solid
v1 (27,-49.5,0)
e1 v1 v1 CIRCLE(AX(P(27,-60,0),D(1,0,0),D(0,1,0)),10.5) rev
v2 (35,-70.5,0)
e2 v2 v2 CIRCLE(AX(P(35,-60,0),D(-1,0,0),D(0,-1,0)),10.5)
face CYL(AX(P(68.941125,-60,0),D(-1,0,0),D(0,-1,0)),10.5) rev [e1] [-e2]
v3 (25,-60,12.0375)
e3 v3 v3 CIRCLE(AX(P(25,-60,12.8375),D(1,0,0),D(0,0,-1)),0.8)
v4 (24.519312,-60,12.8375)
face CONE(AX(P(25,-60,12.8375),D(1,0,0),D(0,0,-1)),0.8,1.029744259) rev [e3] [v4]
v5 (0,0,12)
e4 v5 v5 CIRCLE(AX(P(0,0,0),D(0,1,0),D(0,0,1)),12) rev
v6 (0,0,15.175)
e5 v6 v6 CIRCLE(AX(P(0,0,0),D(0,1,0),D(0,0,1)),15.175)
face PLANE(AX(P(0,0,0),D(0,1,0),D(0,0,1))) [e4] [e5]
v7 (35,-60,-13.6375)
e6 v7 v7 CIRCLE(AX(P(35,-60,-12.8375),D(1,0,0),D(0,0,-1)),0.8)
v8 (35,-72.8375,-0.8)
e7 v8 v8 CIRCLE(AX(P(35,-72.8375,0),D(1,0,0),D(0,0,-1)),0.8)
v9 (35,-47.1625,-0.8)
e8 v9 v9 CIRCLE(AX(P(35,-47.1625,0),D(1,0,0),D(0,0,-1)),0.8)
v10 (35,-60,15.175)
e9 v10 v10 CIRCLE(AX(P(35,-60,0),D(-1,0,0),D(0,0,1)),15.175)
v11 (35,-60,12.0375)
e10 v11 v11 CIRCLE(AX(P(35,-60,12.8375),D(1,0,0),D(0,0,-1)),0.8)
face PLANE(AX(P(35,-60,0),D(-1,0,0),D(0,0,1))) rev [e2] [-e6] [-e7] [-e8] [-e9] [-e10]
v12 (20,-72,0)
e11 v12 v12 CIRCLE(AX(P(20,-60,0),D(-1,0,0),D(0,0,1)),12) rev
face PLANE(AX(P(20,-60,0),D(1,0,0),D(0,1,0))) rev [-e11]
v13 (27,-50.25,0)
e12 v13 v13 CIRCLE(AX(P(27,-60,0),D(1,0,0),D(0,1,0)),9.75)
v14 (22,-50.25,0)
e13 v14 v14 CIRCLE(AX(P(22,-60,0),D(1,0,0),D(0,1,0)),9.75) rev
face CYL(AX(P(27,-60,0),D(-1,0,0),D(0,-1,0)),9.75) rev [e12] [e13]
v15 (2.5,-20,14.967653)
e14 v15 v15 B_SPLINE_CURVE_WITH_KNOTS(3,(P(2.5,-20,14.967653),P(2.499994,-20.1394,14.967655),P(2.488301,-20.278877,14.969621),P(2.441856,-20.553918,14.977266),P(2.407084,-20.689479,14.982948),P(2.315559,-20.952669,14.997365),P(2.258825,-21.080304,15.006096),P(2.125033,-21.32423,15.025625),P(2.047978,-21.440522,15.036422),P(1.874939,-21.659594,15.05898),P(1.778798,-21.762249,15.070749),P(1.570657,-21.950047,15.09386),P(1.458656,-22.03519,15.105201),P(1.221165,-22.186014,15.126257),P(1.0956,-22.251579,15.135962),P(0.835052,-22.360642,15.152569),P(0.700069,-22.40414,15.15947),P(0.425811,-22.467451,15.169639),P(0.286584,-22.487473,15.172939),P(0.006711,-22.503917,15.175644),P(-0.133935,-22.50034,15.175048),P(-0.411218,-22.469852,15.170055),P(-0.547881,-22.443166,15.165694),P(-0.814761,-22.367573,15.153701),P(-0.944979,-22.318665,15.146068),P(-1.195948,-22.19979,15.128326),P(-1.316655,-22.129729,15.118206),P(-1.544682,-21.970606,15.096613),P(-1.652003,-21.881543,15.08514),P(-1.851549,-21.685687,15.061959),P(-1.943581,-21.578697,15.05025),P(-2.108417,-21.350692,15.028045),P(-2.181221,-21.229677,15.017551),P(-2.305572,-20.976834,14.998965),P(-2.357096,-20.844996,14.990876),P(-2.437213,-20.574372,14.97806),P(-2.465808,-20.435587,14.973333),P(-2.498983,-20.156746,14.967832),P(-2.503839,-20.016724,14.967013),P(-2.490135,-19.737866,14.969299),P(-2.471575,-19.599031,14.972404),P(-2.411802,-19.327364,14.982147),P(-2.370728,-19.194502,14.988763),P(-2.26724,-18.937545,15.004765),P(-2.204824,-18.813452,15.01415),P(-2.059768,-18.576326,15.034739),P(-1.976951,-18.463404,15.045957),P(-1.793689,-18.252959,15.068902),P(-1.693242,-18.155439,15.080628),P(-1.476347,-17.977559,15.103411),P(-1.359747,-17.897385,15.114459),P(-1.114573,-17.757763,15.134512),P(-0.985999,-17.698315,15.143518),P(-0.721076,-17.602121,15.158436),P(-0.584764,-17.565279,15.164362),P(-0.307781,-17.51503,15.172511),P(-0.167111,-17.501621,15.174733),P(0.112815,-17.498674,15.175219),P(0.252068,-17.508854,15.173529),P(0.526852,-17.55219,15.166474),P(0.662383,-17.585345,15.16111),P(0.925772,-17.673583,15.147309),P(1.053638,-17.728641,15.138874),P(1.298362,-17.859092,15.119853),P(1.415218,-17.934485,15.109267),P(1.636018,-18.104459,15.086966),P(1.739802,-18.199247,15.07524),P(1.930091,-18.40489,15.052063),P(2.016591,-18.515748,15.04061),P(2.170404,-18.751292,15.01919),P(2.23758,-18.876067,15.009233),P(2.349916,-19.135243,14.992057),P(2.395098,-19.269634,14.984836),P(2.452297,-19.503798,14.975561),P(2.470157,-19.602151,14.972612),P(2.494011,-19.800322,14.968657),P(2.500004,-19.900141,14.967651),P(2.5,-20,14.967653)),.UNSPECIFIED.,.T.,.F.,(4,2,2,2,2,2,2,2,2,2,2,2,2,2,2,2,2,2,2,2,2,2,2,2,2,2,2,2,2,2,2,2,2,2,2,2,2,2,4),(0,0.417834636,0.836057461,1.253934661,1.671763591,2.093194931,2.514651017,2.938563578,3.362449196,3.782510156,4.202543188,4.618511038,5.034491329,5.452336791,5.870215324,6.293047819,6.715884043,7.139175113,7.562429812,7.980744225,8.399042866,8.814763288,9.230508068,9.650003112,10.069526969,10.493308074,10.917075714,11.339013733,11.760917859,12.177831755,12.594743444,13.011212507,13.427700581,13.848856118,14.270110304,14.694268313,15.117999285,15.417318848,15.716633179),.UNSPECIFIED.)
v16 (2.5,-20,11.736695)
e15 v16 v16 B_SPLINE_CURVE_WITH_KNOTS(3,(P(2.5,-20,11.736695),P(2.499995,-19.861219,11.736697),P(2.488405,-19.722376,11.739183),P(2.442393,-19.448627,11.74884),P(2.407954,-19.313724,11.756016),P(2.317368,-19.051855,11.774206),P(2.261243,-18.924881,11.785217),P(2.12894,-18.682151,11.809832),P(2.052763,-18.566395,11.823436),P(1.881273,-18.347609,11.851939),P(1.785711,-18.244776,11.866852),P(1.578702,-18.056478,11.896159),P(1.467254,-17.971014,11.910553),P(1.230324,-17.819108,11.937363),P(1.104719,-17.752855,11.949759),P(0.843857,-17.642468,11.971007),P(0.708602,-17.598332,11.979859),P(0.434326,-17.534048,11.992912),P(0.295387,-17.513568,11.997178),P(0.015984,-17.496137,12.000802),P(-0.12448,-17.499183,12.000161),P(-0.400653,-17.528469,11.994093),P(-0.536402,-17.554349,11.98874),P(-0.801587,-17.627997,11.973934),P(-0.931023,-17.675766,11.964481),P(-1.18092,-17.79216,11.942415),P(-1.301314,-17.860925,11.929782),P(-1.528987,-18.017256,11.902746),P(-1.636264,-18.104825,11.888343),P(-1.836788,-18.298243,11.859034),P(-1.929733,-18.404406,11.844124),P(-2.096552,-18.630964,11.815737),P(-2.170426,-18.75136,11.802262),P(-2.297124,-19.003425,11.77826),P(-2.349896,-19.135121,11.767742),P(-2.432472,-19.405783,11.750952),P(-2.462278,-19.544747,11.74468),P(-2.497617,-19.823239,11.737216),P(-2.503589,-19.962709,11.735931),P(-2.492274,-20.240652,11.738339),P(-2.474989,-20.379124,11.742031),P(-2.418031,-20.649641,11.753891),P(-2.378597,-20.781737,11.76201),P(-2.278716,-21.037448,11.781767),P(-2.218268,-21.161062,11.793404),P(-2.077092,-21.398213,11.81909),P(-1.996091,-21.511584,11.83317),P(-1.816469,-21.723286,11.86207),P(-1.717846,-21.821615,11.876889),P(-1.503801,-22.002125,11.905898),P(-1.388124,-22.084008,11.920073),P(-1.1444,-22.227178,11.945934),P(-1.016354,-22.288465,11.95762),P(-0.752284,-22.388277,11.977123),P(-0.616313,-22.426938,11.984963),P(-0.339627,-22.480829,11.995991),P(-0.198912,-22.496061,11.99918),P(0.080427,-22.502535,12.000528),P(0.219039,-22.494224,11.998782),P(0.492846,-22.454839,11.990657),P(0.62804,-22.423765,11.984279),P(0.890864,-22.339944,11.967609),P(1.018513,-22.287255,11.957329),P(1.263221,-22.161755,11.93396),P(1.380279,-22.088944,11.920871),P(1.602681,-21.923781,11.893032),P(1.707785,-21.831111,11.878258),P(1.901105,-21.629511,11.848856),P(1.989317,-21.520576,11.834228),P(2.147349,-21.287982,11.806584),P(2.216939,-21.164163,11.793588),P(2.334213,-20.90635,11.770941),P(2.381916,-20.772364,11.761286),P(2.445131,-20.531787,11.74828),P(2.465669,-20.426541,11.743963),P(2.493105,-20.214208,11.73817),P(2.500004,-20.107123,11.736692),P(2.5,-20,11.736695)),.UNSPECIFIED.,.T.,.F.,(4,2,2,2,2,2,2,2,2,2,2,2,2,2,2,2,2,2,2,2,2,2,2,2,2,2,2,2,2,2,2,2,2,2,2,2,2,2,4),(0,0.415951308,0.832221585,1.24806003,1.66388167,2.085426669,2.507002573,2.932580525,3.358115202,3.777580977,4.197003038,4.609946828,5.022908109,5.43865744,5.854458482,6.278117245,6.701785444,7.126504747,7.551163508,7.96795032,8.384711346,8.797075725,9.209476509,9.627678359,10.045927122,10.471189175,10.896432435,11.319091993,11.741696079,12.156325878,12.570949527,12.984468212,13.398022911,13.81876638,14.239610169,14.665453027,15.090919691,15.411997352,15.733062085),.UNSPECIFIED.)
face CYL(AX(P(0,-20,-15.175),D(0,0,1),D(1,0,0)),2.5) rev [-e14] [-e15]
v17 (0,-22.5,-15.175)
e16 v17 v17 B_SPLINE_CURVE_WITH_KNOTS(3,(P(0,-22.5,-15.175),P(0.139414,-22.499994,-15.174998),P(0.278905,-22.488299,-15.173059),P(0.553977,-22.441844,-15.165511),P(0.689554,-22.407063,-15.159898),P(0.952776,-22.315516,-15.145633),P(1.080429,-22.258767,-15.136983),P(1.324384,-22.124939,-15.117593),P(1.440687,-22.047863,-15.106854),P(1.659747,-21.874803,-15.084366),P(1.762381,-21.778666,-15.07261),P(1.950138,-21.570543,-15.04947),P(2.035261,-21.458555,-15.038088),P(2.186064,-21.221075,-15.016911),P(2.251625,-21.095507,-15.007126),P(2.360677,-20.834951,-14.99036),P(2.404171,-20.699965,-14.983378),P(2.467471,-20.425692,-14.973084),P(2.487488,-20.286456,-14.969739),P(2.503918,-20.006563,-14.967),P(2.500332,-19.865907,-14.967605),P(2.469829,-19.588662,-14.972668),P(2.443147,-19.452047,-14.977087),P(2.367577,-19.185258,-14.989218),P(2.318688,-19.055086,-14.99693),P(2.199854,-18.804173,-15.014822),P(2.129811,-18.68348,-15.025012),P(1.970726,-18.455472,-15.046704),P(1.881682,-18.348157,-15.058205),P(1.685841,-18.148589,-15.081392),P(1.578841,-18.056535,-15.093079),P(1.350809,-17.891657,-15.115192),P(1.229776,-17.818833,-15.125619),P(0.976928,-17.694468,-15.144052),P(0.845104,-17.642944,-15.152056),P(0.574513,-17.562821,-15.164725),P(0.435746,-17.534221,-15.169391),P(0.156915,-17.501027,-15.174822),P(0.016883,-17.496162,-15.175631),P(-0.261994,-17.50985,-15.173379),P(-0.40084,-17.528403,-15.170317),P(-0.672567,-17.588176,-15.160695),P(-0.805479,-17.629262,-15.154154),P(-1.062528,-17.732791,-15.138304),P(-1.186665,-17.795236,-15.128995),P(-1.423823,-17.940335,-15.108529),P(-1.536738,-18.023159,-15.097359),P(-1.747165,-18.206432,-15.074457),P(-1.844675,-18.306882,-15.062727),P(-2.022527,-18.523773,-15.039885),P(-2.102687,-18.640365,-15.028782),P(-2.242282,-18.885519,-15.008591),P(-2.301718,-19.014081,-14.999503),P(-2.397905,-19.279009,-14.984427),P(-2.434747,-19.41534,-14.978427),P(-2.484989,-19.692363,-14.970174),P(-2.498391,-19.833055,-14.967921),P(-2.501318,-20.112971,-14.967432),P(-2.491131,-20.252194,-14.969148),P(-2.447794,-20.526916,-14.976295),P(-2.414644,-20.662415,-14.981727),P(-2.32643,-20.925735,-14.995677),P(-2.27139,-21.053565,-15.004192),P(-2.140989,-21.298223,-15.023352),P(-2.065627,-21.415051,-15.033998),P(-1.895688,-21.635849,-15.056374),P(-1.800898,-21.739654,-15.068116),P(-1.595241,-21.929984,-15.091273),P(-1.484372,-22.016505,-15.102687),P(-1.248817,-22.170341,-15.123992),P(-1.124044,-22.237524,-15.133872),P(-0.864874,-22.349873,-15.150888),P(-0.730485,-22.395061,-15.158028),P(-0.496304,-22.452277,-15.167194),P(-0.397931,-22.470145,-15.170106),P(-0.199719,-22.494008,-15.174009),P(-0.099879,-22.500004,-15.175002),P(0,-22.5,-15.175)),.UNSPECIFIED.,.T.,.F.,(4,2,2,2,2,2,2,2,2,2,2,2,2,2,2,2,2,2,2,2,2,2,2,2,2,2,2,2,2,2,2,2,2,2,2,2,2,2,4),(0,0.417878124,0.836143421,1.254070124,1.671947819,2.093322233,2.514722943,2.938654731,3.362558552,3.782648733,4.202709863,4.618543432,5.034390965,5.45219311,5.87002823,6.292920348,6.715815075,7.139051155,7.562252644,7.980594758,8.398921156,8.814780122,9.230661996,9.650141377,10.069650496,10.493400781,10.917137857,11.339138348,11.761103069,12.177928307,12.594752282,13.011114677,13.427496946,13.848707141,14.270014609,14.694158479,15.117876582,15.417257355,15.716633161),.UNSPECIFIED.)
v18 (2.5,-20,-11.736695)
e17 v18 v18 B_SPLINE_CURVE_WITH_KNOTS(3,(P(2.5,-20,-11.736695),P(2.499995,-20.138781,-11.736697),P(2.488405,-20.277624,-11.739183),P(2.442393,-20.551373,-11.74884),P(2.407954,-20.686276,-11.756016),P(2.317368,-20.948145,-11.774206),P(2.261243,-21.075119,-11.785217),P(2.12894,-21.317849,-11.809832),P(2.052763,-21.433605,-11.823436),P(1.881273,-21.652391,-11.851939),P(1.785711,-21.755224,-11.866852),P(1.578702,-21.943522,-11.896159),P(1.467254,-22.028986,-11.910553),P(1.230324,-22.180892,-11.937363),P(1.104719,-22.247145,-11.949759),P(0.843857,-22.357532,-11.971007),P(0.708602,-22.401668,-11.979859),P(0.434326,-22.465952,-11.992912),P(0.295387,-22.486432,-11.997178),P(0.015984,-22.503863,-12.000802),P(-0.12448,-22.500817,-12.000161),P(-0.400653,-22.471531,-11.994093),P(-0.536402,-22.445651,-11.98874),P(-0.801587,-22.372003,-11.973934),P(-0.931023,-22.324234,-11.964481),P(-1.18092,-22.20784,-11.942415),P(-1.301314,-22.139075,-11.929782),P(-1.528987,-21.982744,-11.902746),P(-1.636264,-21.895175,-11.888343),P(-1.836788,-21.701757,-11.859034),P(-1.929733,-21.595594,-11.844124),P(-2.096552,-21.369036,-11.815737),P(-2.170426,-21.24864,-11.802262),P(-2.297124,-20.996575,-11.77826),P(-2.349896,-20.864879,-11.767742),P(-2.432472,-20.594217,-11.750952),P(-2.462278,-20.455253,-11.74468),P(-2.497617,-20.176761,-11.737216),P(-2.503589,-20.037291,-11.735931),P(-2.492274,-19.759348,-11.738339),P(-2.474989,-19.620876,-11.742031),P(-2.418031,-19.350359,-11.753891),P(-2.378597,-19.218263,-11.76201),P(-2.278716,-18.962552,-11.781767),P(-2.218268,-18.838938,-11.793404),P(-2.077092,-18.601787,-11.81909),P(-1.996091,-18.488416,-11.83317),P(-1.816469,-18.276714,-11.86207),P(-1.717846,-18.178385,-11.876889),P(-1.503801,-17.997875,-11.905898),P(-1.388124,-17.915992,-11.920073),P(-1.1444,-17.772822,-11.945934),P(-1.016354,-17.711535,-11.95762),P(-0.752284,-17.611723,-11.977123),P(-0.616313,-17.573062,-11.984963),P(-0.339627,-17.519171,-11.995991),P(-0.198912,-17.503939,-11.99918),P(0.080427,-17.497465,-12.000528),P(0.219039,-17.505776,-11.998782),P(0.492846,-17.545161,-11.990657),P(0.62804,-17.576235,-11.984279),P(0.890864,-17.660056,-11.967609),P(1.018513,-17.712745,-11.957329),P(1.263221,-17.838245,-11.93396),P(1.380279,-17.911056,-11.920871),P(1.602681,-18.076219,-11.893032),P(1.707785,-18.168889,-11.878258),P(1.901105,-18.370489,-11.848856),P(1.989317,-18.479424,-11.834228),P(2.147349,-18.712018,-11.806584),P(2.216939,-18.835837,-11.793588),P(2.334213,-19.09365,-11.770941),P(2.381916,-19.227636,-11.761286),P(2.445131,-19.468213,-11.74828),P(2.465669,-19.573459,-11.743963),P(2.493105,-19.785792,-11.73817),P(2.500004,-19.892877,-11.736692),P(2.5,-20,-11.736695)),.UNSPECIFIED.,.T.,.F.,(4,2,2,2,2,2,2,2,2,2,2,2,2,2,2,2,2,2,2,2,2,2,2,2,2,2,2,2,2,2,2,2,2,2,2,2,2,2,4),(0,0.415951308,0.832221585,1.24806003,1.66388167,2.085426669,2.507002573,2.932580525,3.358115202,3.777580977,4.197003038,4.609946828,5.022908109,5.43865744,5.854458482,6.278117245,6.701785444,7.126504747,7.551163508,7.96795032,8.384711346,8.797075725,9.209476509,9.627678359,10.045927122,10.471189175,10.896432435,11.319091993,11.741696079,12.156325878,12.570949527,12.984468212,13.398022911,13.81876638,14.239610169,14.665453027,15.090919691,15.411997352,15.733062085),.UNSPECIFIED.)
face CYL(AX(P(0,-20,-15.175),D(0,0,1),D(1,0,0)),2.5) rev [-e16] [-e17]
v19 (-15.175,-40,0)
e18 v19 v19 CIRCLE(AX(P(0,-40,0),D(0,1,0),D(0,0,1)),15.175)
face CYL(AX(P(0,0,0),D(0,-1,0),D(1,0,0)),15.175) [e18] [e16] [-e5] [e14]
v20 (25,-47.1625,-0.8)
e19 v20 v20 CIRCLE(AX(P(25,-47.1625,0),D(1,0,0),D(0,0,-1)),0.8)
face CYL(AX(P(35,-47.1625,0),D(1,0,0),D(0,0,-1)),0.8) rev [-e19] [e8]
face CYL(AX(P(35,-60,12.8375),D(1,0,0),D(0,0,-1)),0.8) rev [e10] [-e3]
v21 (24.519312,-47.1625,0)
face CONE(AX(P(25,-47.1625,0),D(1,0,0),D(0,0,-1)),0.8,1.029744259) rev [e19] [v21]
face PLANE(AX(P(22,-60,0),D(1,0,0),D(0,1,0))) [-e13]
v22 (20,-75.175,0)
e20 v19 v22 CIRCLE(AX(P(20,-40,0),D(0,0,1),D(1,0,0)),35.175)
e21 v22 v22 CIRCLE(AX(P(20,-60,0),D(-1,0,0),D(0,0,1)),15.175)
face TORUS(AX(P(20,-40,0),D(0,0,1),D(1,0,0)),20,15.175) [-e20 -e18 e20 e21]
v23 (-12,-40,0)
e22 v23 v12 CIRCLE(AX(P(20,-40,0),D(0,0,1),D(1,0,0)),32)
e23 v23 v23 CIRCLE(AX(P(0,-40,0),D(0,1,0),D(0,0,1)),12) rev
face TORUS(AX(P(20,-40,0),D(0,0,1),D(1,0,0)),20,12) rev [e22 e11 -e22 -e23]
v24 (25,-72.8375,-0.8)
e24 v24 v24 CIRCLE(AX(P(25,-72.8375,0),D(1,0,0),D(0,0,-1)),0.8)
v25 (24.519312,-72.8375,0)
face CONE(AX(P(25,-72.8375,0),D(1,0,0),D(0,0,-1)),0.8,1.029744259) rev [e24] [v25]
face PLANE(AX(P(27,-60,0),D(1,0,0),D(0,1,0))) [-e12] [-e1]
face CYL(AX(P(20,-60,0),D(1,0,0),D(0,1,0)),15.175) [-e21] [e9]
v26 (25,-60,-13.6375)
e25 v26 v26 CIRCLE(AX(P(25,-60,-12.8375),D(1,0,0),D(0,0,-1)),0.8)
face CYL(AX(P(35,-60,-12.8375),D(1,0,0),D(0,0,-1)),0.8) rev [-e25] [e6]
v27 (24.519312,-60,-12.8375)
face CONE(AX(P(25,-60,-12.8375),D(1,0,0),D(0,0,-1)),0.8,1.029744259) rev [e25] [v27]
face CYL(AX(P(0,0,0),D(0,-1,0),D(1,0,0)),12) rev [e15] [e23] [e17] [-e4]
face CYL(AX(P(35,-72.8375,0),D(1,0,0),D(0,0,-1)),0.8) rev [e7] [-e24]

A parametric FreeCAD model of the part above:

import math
import FreeCAD as App
import Part
import Sketcher

V = App.Vector
Q = App.Units.Quantity

doc = App.newDocument("Part")
body = doc.addObject("PartDesign::Body", "Body")

# Sketch on XZ plane
sketch1 = doc.addObject("Sketcher::SketchObject", "Sketch")
body.addObject(sketch1)
sketch1.AttachmentSupport = (doc.XZ_Plane, [""])
sketch1.MapMode = "FlatFace"
sketch1.addGeometry([
    Part.Circle(V(0, 0, 0), V(0, 0, 1), 15),
    Part.Circle(V(0, 0, 0), V(0, 0, 1), 12),
], False)
sketch1.addConstraint([
    Sketcher.Constraint("Coincident", 0, 3, -1, 1),
    Sketcher.Constraint("Coincident", 1, 3, -1, 1),
    Sketcher.Constraint("Diameter", 1, Q("24 mm")),
    Sketcher.Constraint("Diameter", 0, Q("30.35 mm")),
])

# Sketch on XY plane
sketch2 = doc.addObject("Sketcher::SketchObject", "Sketch001")
body.addObject(sketch2)
sketch2.AttachmentSupport = (doc.XY_Plane, [""])
sketch2.MapMode = "FlatFace"
sketch2.addGeometry([
    Part.LineSegment(V(0, 0, 0), V(0, -40, 0)),
    Part.ArcOfCircle(Part.Circle(V(20, -40, 0), V(0, 0, 1), 20), math.radians(180), math.radians(270)),
    Part.LineSegment(V(20, -60, 0), V(35, -60, 0)),
], False)
sketch2.addConstraint([
    Sketcher.Constraint("Tangent", 0, 2, 1, 1),
    Sketcher.Constraint("Tangent", 1, 2, 2, 1),
    Sketcher.Constraint("Vertical", 0),
    Sketcher.Constraint("Horizontal", 2),
    Sketcher.Constraint("Coincident", 0, 1, -1, 1),
    Sketcher.Constraint("Radius", 1, Q("20 mm")),
    Sketcher.Constraint("DistanceX", 2, 1, 2, 2, Q("15 mm")),
    Sketcher.Constraint("DistanceY", 0, 2, 0, 1, Q("40 mm")),
])
doc.recompute()

additivepipe = doc.addObject("PartDesign::AdditivePipe", "AdditivePipe")
body.addObject(additivepipe)
additivepipe.Profile = sketch1
additivepipe.Spine = (sketch2, ["Edge1", "Edge2", "Edge3"])

# Sketch on YZ plane
sketch3 = doc.addObject("Sketcher::SketchObject", "Sketch002")
body.addObject(sketch3)
sketch3.AttachmentSupport = (doc.YZ_Plane, [""])
sketch3.MapMode = "FlatFace"
sketch3.AttachmentOffset = App.Placement(V(0, 0, 20), App.Rotation())
sketch3.addGeometry(Part.Circle(V(-60, 0, 0), V(0, 0, 1), 12), False)
sketch3.addConstraint([
    Sketcher.Constraint("PointOnObject", 0, 3, -1),
    Sketcher.Constraint("Diameter", 0, Q("24 mm")),
    Sketcher.Constraint("DistanceX", 0, 3, -1, 1, Q("60 mm")),
])
pad1 = doc.addObject("PartDesign::Pad", "Pad")
body.addObject(pad1)
pad1.Profile = sketch3
pad1.Length = 2

# Sketch on YZ plane
sketch4 = doc.addObject("Sketcher::SketchObject", "Sketch003")
body.addObject(sketch4)
sketch4.AttachmentSupport = (doc.YZ_Plane, [""])
sketch4.MapMode = "FlatFace"
sketch4.AttachmentOffset = App.Placement(V(0, 0, 22), App.Rotation())
sketch4.addGeometry([
    Part.Circle(V(-60, 0, 0), V(0, 0, 1), 12),
    Part.Circle(V(-60, 0, 0), V(0, 0, 1), 10),
], False)
sketch4.addConstraint([
    Sketcher.Constraint("Coincident", 1, 3, 0, 3),
    Sketcher.Constraint("PointOnObject", 0, 3, -1),
    Sketcher.Constraint("Diameter", 0, Q("24 mm")),
    Sketcher.Constraint("Diameter", 1, Q("19.5 mm")),
    Sketcher.Constraint("DistanceX", 0, 3, -1, 1, Q("60 mm")),
])
pad2 = doc.addObject("PartDesign::Pad", "Pad001")
body.addObject(pad2)
pad2.Profile = sketch4
pad2.Length = 5

# Sketch on YZ plane
sketch5 = doc.addObject("Sketcher::SketchObject", "Sketch004")
body.addObject(sketch5)
sketch5.AttachmentSupport = (doc.YZ_Plane, [""])
sketch5.MapMode = "FlatFace"
sketch5.AttachmentOffset = App.Placement(V(0, 0, 27), App.Rotation())
sketch5.addGeometry([
    Part.Circle(V(-60, 0, 0), V(0, 0, 1), 12),
    Part.Circle(V(-60, 0, 0), V(0, 0, 1), 10),
], False)
sketch5.addConstraint([
    Sketcher.Constraint("Coincident", 1, 3, 0, 3),
    Sketcher.Constraint("PointOnObject", 0, 3, -1),
    Sketcher.Constraint("Diameter", 0, Q("24 mm")),
    Sketcher.Constraint("Diameter", 1, Q("21 mm")),
    Sketcher.Constraint("DistanceX", 0, 3, -1, 1, Q("60 mm")),
])
pad3 = doc.addObject("PartDesign::Pad", "Pad002")
body.addObject(pad3)
pad3.Profile = sketch5
pad3.Length = 8

# Sketch on XY plane
sketch6 = doc.addObject("Sketcher::SketchObject", "Sketch005")
body.addObject(sketch6)
sketch6.AttachmentSupport = (doc.XY_Plane, [""])
sketch6.MapMode = "FlatFace"
sketch6.addGeometry(Part.Circle(V(0, -20, 0), V(0, 0, 1), 2.5), False)
sketch6.addConstraint([
    Sketcher.Constraint("PointOnObject", 0, 3, -2),
    Sketcher.Constraint("Diameter", 0, Q("5 mm")),
    Sketcher.Constraint("DistanceY", 0, 3, -1, 1, Q("20 mm")),
])
pocket1 = doc.addObject("PartDesign::Pocket", "Pocket")
body.addObject(pocket1)
pocket1.Profile = sketch6
pocket1.Type = "ThroughAll"
pocket1.Midplane = True

# Sketch on YZ plane
sketch7 = doc.addObject("Sketcher::SketchObject", "Sketch006")
body.addObject(sketch7)
sketch7.AttachmentSupport = (doc.YZ_Plane, [""])
sketch7.MapMode = "FlatFace"
sketch7.AttachmentOffset = App.Placement(V(0, 0, 35), App.Rotation())
sketch7.addGeometry([
    Part.Circle(V(-47.2, 0, 0), V(0, 0, 1), 0.8),
    Part.Circle(V(-60, -12.8, 0), V(0, 0, 1), 0.8),
    Part.Circle(V(-72.8, 0, 0), V(0, 0, 1), 0.8),
    Part.Circle(V(-60, 12.8, 0), V(0, 0, 1), 0.8),
], False)
sketch7.addConstraint([
    Sketcher.Constraint("Equal", 0, 1),
    Sketcher.Constraint("Equal", 1, 2),
    Sketcher.Constraint("Equal", 2, 3),
    Sketcher.Constraint("Symmetric", 1, 3, 3, 3, -1),
    Sketcher.Constraint("PointOnObject", 0, 3, -1),
    Sketcher.Constraint("PointOnObject", 2, 3, -1),
    Sketcher.Constraint("Diameter", 0, Q("1.6 mm")),
    Sketcher.Constraint("DistanceX", 1, 3, -1, 1, Q("60 mm")),
    Sketcher.Constraint("DistanceX", 2, 3, 0, 3, Q("25.675 mm")),
    Sketcher.Constraint("DistanceY", 1, 3, 3, 3, Q("25.675 mm")),
    Sketcher.Constraint("DistanceX", 0, 3, -1, 1, Q("47.1625 mm")),
])
doc.recompute()
hole = doc.addObject("PartDesign::Hole", "Hole")
body.addObject(hole)
hole.Profile = sketch7
hole.ThreadType = "None"
hole.Diameter = 1.6
hole.DepthType = "Dimension"
hole.Depth = 10
hole.DrillPoint = "Angled"
hole.DrillPointAngle = 118

doc.recompute()
